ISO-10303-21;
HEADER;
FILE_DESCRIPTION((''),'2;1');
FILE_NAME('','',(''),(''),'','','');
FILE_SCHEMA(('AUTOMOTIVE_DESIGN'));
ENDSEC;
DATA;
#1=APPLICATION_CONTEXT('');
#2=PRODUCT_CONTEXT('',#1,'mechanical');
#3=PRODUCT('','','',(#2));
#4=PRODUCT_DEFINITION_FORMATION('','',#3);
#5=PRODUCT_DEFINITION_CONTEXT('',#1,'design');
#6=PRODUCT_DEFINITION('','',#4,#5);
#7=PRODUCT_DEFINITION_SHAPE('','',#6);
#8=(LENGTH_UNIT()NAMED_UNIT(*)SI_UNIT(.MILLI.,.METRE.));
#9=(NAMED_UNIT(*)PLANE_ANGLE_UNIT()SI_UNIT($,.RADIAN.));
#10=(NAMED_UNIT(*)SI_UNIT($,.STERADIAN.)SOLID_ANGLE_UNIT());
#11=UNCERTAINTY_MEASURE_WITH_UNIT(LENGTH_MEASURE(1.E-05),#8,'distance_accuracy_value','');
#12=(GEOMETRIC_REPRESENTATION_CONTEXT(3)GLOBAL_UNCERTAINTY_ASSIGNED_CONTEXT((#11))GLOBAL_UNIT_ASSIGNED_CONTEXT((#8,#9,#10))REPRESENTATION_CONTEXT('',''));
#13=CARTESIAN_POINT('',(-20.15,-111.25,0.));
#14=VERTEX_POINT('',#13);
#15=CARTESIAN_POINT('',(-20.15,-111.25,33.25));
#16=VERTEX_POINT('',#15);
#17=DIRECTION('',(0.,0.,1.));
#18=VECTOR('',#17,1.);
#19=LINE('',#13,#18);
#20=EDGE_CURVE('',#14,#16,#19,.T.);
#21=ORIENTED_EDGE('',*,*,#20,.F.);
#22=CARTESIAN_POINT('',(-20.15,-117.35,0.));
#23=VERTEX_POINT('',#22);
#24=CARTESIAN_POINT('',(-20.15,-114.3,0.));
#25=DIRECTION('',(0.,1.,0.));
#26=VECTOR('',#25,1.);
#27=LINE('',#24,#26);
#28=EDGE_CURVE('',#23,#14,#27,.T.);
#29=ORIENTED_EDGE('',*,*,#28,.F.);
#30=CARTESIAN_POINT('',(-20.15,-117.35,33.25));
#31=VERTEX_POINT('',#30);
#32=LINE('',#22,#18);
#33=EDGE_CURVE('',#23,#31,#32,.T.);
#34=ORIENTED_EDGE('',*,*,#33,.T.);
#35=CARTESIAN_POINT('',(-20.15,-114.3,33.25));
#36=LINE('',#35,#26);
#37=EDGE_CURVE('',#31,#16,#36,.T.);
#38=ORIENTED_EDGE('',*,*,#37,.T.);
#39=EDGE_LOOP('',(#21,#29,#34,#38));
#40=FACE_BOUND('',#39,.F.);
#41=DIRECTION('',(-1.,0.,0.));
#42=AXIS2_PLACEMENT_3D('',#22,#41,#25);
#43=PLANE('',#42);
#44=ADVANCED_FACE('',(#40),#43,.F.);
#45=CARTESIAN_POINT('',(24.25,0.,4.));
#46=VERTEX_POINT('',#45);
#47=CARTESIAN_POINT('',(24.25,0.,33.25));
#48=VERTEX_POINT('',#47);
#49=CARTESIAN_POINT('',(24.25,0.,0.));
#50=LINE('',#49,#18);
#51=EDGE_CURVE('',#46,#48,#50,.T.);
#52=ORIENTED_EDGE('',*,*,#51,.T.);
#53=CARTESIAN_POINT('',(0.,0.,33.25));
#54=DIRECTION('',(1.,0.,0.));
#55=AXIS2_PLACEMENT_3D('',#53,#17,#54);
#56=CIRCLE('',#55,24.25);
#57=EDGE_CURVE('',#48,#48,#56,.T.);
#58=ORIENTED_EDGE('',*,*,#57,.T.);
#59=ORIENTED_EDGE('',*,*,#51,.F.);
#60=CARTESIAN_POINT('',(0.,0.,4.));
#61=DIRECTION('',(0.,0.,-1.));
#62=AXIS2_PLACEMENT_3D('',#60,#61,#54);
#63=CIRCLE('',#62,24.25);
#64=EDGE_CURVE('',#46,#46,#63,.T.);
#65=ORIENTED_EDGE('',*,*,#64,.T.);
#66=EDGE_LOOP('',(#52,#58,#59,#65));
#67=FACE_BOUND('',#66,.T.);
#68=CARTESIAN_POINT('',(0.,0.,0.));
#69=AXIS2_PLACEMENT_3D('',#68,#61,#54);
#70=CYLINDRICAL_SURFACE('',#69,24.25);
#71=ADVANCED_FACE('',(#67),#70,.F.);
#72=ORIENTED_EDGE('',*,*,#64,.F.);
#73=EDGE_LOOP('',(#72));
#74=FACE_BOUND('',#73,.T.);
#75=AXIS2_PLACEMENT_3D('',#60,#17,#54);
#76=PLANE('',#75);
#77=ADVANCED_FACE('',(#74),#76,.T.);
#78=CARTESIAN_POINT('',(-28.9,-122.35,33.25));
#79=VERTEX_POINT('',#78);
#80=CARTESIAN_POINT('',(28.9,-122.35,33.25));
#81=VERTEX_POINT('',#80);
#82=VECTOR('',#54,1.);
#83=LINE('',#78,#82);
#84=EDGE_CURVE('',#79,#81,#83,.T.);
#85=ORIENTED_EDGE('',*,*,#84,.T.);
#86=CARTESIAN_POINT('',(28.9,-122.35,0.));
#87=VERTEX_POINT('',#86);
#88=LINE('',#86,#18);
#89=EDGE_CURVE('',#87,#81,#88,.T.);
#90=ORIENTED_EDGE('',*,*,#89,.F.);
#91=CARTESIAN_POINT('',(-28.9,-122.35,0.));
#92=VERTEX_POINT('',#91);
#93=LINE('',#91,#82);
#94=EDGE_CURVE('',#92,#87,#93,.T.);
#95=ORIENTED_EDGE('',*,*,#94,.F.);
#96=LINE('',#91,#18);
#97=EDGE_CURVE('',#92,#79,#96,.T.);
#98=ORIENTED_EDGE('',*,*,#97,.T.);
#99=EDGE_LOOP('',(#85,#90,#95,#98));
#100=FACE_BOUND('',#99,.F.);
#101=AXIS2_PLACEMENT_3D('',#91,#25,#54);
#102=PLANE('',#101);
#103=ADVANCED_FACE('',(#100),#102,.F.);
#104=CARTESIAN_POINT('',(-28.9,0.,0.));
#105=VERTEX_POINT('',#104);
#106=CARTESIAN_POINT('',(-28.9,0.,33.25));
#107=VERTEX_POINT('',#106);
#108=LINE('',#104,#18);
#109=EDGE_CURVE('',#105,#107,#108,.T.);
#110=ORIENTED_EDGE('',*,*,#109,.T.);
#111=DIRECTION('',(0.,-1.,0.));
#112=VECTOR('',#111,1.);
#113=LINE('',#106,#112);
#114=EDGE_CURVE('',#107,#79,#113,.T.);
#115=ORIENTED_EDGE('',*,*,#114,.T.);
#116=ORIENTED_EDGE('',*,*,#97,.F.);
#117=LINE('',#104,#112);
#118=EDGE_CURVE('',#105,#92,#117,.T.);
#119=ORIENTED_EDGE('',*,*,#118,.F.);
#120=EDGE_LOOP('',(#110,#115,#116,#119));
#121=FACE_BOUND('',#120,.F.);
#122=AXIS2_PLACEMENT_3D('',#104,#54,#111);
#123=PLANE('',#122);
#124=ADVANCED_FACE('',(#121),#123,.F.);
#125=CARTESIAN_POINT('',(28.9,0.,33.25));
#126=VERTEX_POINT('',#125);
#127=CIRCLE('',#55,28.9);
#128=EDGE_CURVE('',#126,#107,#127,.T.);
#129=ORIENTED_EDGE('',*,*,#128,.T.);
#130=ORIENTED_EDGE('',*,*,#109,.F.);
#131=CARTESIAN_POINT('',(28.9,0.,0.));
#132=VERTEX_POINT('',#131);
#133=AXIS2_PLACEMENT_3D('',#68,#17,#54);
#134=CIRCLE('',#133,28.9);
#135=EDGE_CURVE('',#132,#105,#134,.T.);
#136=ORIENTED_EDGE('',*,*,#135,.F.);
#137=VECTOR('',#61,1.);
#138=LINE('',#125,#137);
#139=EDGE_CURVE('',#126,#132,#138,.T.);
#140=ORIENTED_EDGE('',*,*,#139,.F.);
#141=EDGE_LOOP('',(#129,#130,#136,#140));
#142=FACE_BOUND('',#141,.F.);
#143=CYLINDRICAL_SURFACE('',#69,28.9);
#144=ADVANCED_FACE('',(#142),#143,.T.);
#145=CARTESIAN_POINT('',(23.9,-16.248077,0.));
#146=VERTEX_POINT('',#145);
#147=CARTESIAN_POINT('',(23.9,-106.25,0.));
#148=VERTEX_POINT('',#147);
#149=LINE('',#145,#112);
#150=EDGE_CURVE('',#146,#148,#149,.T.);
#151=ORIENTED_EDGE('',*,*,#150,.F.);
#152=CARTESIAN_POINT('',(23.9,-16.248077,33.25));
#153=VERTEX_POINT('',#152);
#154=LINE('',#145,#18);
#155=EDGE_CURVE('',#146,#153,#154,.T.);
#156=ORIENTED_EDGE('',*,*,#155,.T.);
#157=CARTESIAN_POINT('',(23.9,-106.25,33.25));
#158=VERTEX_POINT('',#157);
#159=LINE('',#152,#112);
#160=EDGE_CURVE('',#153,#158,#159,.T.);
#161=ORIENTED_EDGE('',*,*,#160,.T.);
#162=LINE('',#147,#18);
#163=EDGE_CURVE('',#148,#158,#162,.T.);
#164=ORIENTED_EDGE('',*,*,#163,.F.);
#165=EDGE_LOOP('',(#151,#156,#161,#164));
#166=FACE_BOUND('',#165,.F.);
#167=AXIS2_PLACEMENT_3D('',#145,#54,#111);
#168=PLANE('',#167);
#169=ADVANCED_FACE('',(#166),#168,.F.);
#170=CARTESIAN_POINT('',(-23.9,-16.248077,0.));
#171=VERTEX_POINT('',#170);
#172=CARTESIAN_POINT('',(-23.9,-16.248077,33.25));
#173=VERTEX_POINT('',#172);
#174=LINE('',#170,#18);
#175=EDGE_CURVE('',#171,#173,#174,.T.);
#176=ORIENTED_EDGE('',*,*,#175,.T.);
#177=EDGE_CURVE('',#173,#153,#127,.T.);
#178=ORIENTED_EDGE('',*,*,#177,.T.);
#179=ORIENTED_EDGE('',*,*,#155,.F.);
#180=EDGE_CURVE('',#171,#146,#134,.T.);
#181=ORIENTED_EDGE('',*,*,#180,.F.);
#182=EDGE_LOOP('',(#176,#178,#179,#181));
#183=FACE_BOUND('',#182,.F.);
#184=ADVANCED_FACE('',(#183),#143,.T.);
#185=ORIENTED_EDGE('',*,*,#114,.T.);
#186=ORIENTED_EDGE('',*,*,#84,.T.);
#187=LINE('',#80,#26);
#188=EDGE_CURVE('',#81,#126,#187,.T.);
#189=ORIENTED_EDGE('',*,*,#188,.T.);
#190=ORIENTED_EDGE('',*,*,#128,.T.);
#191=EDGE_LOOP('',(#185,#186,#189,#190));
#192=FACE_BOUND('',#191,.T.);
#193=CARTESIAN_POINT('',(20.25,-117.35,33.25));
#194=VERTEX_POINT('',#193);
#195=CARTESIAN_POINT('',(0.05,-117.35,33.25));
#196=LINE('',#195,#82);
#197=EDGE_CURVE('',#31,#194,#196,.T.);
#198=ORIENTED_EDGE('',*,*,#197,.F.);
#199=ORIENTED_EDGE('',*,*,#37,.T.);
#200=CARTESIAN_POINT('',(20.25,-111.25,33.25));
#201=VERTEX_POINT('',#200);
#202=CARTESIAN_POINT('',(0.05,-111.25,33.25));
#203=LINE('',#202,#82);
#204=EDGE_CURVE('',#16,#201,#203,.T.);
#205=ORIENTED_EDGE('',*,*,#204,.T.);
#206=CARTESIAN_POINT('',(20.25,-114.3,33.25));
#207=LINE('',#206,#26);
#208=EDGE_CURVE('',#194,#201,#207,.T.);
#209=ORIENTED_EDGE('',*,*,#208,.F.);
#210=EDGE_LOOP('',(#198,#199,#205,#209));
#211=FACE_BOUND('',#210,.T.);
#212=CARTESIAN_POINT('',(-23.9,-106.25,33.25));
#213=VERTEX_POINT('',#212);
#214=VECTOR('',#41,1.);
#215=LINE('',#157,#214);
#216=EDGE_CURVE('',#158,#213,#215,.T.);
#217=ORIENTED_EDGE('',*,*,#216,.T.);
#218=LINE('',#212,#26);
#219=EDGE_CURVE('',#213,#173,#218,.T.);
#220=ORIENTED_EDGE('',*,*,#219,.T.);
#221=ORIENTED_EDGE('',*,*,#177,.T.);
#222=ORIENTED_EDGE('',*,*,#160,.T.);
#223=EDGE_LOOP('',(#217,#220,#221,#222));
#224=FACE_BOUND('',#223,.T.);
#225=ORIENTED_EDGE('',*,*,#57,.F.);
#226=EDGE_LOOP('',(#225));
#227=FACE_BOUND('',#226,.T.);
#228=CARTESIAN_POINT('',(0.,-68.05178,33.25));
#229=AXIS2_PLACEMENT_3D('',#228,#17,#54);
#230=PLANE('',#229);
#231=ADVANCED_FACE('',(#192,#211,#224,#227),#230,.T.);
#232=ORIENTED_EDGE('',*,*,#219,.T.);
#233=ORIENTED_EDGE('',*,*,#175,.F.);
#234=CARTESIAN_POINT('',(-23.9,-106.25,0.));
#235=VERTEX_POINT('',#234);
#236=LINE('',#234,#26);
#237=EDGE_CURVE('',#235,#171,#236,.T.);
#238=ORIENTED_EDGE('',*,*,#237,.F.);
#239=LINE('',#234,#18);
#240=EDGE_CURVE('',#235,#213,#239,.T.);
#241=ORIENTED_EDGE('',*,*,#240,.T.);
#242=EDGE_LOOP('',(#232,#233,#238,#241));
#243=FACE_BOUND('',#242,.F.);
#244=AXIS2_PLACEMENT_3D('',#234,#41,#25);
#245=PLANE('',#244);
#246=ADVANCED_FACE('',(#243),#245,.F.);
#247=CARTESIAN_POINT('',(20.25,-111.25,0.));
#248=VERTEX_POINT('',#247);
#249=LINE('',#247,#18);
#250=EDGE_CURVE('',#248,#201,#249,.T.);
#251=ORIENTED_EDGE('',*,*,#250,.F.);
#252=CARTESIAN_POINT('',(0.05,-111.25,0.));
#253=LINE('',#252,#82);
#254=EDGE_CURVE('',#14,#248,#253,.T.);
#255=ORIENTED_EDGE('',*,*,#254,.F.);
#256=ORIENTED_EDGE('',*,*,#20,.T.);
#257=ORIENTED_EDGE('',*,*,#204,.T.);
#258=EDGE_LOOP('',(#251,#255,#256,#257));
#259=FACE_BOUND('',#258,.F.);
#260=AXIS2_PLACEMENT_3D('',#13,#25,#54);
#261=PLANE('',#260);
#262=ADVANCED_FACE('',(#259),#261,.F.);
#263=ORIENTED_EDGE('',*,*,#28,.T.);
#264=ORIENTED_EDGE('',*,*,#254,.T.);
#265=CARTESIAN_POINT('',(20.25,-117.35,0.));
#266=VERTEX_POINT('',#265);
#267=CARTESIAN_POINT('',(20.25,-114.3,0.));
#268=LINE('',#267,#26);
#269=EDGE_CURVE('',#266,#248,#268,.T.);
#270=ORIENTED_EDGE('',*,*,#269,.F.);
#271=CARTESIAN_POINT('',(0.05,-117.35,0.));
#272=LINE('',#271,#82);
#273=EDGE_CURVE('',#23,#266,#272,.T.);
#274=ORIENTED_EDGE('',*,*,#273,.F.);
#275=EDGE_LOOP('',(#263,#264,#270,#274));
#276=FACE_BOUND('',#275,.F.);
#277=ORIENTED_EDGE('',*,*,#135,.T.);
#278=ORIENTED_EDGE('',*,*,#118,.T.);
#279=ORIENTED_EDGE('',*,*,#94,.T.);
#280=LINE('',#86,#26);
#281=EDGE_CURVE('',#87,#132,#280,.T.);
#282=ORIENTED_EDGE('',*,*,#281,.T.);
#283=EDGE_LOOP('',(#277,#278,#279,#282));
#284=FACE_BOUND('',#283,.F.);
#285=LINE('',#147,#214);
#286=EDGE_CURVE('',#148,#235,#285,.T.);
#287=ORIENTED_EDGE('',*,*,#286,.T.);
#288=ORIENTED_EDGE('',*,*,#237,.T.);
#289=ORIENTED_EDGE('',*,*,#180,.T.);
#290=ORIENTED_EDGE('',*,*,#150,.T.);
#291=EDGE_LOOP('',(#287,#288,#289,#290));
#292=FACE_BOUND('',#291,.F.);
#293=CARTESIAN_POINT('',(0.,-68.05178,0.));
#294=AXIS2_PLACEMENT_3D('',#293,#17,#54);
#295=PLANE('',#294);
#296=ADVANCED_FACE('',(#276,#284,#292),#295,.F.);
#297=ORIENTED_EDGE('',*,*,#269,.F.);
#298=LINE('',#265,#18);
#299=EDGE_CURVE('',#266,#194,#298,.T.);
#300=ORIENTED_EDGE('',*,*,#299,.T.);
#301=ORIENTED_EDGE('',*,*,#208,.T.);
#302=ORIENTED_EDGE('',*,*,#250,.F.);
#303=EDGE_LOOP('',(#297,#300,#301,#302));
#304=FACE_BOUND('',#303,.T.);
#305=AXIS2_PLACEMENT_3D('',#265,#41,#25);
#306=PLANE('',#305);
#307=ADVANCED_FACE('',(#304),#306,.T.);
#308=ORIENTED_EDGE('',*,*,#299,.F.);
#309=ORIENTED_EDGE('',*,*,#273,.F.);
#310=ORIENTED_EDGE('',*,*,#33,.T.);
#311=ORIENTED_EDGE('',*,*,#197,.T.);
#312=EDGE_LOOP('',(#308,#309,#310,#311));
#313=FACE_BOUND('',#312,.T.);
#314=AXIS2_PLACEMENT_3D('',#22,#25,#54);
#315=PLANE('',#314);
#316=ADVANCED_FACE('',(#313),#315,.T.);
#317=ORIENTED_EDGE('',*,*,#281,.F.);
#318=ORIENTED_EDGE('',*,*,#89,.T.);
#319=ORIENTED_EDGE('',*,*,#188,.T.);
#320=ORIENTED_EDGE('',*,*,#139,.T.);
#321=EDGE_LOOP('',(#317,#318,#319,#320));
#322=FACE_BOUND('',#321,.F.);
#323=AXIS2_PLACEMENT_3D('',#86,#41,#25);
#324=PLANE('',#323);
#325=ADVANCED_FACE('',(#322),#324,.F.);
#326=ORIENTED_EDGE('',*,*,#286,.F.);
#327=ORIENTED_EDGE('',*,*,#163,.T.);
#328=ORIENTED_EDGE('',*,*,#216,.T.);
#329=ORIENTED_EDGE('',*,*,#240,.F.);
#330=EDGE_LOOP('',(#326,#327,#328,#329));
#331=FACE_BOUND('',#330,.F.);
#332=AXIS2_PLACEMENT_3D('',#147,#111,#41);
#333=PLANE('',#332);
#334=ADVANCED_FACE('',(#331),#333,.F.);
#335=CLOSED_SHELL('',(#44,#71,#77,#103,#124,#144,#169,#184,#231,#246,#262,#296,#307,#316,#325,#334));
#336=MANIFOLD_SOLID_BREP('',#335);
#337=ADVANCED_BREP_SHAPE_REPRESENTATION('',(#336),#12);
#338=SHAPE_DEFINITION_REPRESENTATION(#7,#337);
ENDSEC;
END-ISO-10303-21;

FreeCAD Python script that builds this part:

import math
import FreeCAD as App
import Part
import Sketcher
Q = App.Units.Quantity


def add_polygon(sketch, points):
    """Adds a closed chain of lines whose ends are joined by coincident constraints."""
    first, n = sketch.GeometryCount, len(points)
    for a, b in zip(points, points[1:] + points[:1]):
        sketch.addGeometry(Part.LineSegment(App.Vector(*a, 0), App.Vector(*b, 0)), False)
    for i in range(n):
        sketch.addConstraint(Sketcher.Constraint("Coincident", first + i, 2, first + (i + 1) % n, 1))

doc = App.newDocument("Part")
body = doc.addObject("PartDesign::Body", "Body")

sketch1 = body.newObject("Sketcher::SketchObject", "Sketch")
sketch1.AttachmentSupport = (doc.getObject("XY_Plane"), [""])
sketch1.MapMode = "FlatFace"
sketch1.addGeometry(Part.Circle(App.Vector(0, 0, 0), App.Vector(0, 0, 1), 29), False)
sketch1.addGeometry(Part.Circle(App.Vector(0, 0, 0), App.Vector(0, 0, 1), 24), False)
sketch1.addConstraint(Sketcher.Constraint("Coincident", 0, 3, -1, 1))
sketch1.addConstraint(Sketcher.Constraint("Coincident", 1, 3, -1, 1))
sketch1.addConstraint(Sketcher.Constraint("Diameter", 0, Q("57.8 mm")))
sketch1.addConstraint(Sketcher.Constraint("Diameter", 1, Q("48.5 mm")))
pad1 = body.newObject("PartDesign::Pad", "Pad")
pad1.Profile = sketch1
pad1.Length = 33.25

sketch2 = body.newObject("Sketcher::SketchObject", "Sketch001")
sketch2.AttachmentSupport = (doc.getObject("XY_Plane"), [""])
sketch2.MapMode = "FlatFace"
sketch2.addGeometry(Part.Circle(App.Vector(0, 0, 0), App.Vector(0, 0, 1), 29), False)
sketch2.addConstraint(Sketcher.Constraint("Coincident", 0, 3, -1, 1))
sketch2.addConstraint(Sketcher.Constraint("Diameter", 0, Q("57.8 mm")))
pad2 = body.newObject("PartDesign::Pad", "Pad001")
pad2.Profile = sketch2
pad2.Length = 4

sketch3 = body.newObject("Sketcher::SketchObject", "Sketch002")
sketch3.AttachmentSupport = (doc.getObject("XY_Plane"), [""])
sketch3.MapMode = "FlatFace"
sketch3.addGeometry(Part.ArcOfCircle(Part.Circle(App.Vector(0, 0, 0), App.Vector(0, 0, 1), 29), math.radians(-34), math.radians(0)), False)
sketch3.addGeometry(Part.LineSegment(App.Vector(24, -16, 0), App.Vector(24, -106, 0)), False)
sketch3.addGeometry(Part.LineSegment(App.Vector(24, -106, 0), App.Vector(-24, -106, 0)), False)
sketch3.addGeometry(Part.LineSegment(App.Vector(-24, -106, 0), App.Vector(-24, -16, 0)), False)
sketch3.addGeometry(Part.ArcOfCircle(Part.Circle(App.Vector(0, 0, 0), App.Vector(0, 0, 1), 29), math.radians(180), math.radians(214)), False)
sketch3.addGeometry(Part.LineSegment(App.Vector(-29, 0, 0), App.Vector(-29, -122, 0)), False)
sketch3.addGeometry(Part.LineSegment(App.Vector(-29, -122, 0), App.Vector(29, -122, 0)), False)
sketch3.addGeometry(Part.LineSegment(App.Vector(29, -122, 0), App.Vector(29, 0, 0)), False)
add_polygon(sketch3, [(20, -117), (-20, -117), (-20, -111), (20, -111)])
sketch3.addConstraint(Sketcher.Constraint("Coincident", 0, 1, 1, 1))
sketch3.addConstraint(Sketcher.Constraint("Coincident", 1, 2, 2, 1))
sketch3.addConstraint(Sketcher.Constraint("Coincident", 2, 2, 3, 1))
sketch3.addConstraint(Sketcher.Constraint("Coincident", 3, 2, 4, 2))
sketch3.addConstraint(Sketcher.Constraint("Tangent", 4, 1, 5, 1))
sketch3.addConstraint(Sketcher.Constraint("Coincident", 5, 2, 6, 1))
sketch3.addConstraint(Sketcher.Constraint("Coincident", 6, 2, 7, 1))
sketch3.addConstraint(Sketcher.Constraint("Tangent", 7, 2, 0, 2))
sketch3.addConstraint(Sketcher.Constraint("Vertical", 1))
sketch3.addConstraint(Sketcher.Constraint("Horizontal", 2))
sketch3.addConstraint(Sketcher.Constraint("Vertical", 3))
sketch3.addConstraint(Sketcher.Constraint("Vertical", 5))
sketch3.addConstraint(Sketcher.Constraint("Horizontal", 6))
sketch3.addConstraint(Sketcher.Constraint("Vertical", 7))
sketch3.addConstraint(Sketcher.Constraint("Horizontal", 8))
sketch3.addConstraint(Sketcher.Constraint("Vertical", 9))
sketch3.addConstraint(Sketcher.Constraint("Horizontal", 10))
sketch3.addConstraint(Sketcher.Constraint("Vertical", 11))
sketch3.addConstraint(Sketcher.Constraint("Coincident", 0, 3, -1, 1))
sketch3.addConstraint(Sketcher.Constraint("Coincident", 4, 3, -1, 1))
sketch3.addConstraint(Sketcher.Constraint("Equal", 0, 4))
sketch3.addConstraint(Sketcher.Constraint("Horizontal", 0, 1, 3, 2))
sketch3.addConstraint(Sketcher.Constraint("DistanceX", 2, 2, 2, 1, Q("47.8 mm")))
sketch3.addConstraint(Sketcher.Constraint("DistanceX", 6, 1, 6, 2, Q("57.8 mm")))
sketch3.addConstraint(Sketcher.Constraint("DistanceX", 8, 2, 8, 1, Q("40.4 mm")))
sketch3.addConstraint(Sketcher.Constraint("DistanceY", 9, 1, 9, 2, Q("6.1 mm")))
sketch3.addConstraint(Sketcher.Constraint("DistanceY", 5, 2, 8, 2, Q("5 mm")))
sketch3.addConstraint(Sketcher.Constraint("DistanceY", 9, 2, 2, 2, Q("5 mm")))
sketch3.addConstraint(Sketcher.Constraint("DistanceY", 5, 2, 5, 1, Q("122.35 mm")))
sketch3.addConstraint(Sketcher.Constraint("DistanceX", 8, 2, -1, 1, Q("20.15 mm")))
pad3 = body.newObject("PartDesign::Pad", "Pad002")
pad3.Profile = sketch3
pad3.Length = 33.25

doc.recompute()
